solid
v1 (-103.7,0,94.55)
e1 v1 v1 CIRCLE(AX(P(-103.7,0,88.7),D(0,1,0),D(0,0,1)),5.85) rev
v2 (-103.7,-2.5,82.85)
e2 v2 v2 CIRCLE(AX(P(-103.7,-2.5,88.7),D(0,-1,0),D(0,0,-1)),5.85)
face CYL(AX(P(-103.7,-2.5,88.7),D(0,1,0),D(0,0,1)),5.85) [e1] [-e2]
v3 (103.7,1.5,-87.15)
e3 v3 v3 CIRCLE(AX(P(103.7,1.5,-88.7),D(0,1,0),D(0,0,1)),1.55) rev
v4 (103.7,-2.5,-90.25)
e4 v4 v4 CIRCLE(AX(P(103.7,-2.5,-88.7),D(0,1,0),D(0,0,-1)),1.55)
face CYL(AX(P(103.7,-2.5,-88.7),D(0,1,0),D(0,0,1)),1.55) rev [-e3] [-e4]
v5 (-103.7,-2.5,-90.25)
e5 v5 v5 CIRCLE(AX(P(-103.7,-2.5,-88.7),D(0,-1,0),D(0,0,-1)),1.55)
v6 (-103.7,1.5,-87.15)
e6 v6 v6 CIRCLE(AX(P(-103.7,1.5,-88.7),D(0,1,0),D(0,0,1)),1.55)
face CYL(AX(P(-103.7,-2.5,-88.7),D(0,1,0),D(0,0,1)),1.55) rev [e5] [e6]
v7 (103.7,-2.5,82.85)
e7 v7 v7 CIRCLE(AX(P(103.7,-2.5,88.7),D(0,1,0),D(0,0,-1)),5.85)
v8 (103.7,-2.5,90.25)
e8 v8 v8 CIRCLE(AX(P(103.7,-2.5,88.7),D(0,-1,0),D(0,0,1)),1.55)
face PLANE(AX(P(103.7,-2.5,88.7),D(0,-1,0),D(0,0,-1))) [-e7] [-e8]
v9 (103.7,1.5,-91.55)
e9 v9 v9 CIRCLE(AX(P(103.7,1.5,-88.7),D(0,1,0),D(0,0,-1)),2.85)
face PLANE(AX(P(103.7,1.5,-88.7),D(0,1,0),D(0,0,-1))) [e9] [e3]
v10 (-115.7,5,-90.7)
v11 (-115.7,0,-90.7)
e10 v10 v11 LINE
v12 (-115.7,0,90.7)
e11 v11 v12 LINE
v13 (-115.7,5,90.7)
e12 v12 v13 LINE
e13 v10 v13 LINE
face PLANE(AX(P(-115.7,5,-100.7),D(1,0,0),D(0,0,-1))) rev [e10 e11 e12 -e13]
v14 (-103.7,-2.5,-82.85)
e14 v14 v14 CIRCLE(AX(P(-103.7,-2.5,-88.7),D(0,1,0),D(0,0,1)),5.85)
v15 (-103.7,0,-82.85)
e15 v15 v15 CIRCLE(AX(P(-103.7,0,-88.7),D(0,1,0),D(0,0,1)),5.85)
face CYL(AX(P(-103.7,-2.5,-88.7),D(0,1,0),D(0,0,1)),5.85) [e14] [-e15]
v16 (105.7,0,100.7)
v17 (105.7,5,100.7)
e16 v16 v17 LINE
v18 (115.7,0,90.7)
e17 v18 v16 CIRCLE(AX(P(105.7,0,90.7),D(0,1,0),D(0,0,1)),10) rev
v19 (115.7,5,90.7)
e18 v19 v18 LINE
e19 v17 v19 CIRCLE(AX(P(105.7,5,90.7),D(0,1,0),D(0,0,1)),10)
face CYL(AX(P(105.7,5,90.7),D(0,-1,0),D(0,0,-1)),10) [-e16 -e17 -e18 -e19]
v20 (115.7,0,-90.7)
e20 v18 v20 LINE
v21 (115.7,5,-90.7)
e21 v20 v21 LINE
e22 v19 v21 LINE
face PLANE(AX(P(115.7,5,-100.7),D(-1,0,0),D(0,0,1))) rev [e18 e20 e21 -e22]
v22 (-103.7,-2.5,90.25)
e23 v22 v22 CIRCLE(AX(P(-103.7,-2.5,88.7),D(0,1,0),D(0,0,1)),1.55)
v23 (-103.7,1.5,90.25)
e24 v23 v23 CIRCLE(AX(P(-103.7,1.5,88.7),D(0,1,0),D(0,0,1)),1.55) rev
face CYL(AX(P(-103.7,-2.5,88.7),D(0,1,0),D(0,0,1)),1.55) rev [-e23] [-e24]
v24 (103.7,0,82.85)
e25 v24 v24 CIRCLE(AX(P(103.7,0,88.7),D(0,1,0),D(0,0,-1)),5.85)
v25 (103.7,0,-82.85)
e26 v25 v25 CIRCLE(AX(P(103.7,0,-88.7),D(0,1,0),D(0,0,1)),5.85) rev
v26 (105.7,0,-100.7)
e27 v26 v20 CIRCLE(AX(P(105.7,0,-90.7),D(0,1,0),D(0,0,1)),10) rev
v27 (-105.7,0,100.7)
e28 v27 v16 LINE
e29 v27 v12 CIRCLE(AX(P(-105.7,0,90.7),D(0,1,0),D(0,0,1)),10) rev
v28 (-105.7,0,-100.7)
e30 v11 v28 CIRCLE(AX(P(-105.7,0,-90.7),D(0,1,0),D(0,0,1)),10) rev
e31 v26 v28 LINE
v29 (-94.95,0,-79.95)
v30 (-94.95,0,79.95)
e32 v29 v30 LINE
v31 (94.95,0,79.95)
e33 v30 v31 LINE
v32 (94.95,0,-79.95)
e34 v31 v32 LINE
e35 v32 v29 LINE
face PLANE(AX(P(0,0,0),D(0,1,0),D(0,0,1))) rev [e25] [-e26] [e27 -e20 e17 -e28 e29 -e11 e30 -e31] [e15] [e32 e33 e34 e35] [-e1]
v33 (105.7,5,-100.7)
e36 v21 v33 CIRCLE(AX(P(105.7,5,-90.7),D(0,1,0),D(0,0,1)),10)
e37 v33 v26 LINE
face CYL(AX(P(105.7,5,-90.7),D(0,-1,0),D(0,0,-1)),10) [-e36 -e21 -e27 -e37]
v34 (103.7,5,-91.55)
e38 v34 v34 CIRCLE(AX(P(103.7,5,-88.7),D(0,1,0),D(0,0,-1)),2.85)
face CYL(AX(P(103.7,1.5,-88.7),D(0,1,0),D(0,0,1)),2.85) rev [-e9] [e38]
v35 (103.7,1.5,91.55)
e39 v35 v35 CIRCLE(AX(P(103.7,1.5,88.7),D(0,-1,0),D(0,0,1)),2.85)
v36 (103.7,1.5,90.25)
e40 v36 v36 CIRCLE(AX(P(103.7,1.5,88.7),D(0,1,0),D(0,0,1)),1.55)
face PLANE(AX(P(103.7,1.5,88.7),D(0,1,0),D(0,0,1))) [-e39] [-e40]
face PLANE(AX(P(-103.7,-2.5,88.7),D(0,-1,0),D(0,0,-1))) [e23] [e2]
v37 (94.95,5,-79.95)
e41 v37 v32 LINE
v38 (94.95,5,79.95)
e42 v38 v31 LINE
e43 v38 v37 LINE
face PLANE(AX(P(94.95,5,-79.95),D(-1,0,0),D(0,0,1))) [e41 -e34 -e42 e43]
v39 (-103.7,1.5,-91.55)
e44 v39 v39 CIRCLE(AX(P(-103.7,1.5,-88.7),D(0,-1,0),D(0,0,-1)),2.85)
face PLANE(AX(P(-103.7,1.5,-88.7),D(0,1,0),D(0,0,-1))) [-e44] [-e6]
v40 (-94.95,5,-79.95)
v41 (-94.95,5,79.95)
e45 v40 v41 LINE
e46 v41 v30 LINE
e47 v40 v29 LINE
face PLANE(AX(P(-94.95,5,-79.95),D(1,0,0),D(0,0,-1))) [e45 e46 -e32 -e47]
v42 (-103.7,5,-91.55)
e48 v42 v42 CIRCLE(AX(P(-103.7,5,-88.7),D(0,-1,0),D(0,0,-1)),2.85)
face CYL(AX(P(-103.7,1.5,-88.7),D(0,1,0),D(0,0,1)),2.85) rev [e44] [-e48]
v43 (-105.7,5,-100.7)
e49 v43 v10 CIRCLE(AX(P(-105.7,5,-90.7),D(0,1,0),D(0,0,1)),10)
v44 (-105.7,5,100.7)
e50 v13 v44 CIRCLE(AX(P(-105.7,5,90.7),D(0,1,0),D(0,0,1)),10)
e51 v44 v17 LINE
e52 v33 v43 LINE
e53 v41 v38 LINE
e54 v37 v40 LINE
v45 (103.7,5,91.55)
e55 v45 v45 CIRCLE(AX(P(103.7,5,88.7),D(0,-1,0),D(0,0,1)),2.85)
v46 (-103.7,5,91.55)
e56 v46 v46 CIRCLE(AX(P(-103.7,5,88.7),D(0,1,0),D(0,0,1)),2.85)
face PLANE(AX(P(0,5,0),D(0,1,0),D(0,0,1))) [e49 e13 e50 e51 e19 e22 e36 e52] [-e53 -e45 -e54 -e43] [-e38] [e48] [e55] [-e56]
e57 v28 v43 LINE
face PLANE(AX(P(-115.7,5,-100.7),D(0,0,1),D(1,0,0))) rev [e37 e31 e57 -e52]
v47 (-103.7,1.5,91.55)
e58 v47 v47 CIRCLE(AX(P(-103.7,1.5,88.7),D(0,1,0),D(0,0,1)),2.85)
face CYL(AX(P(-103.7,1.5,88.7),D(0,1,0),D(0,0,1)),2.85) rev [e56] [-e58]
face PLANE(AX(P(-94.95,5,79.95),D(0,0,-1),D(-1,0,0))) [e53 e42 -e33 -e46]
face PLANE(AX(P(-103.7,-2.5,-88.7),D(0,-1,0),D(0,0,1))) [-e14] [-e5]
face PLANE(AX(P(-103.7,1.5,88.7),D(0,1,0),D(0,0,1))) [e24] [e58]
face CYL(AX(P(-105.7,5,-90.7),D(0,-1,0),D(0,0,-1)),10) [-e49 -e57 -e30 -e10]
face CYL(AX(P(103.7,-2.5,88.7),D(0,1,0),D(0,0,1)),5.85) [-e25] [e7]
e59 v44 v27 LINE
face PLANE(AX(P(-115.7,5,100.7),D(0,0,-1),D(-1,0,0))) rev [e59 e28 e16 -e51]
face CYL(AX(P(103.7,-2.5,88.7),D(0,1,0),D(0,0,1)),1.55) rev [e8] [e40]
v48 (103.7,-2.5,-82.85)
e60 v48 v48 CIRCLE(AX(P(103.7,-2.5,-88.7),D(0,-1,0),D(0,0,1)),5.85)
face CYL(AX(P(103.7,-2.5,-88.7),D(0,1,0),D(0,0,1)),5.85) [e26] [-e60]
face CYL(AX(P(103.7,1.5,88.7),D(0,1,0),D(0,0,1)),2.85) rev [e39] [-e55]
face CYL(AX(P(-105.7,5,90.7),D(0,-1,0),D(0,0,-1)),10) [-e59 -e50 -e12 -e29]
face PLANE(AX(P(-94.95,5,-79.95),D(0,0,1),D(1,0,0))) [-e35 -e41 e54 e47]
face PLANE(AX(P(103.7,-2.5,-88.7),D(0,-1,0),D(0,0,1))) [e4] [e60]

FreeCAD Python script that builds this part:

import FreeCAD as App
import Part
import Sketcher

V = App.Vector


def edges_at(feature, points):
    """Names of the edges that pass closest to the given points."""
    edges = feature.Shape.Edges
    near = lambda p: min(range(len(edges)), key=lambda i: edges[i].distToShape(Part.Vertex(*p))[0])
    return sorted({f"Edge{near(p) + 1}" for p in points})


def add_polygon(sketch, points):
    """Adds a closed chain of lines whose ends are joined by coincident constraints."""
    first, n = sketch.GeometryCount, len(points)
    for a, b in zip(points, points[1:] + points[:1]):
        sketch.addGeometry(Part.LineSegment(App.Vector(*a, 0), App.Vector(*b, 0)), False)
    for i in range(n):
        sketch.addConstraint(Sketcher.Constraint("Coincident", first + i, 2, first + (i + 1) % n, 1))

doc = App.newDocument("Part")
body = doc.addObject("PartDesign::Body", "Body")

sketch1 = doc.addObject("Sketcher::SketchObject", "Sketch")
body.addObject(sketch1)
sketch1.AttachmentSupport = (doc.XZ_Plane, [""])
sketch1.MapMode = "FlatFace"
add_polygon(sketch1, [(-115.7, -100.7), (-115.7, 100.7), (115.7, 100.7), (115.7, -100.7)])
add_polygon(sketch1, [(94.95, 79.95), (-94.95, 79.95), (-94.95, -79.95), (94.95, -79.95)])
sketch1.addConstraint(Sketcher.Constraint("Vertical", 0))
sketch1.addConstraint(Sketcher.Constraint("Horizontal", 1))
sketch1.addConstraint(Sketcher.Constraint("Vertical", 2))
sketch1.addConstraint(Sketcher.Constraint("Horizontal", 3))
sketch1.addConstraint(Sketcher.Constraint("Horizontal", 4))
sketch1.addConstraint(Sketcher.Constraint("Vertical", 5))
sketch1.addConstraint(Sketcher.Constraint("Horizontal", 6))
sketch1.addConstraint(Sketcher.Constraint("Vertical", 7))
sketch1.addConstraint(Sketcher.Constraint("Symmetric", 0, 2, 2, 2, -1, 1))
sketch1.addConstraint(Sketcher.Constraint("Symmetric", 4, 2, 6, 2, -1, 1))
sketch1.addConstraint(Sketcher.Constraint("DistanceX", 1, 1, 1, 2, 231.4))
sketch1.addConstraint(Sketcher.Constraint("DistanceX", 4, 2, 4, 1, 189.9))
sketch1.addConstraint(Sketcher.Constraint("DistanceY", 0, 1, 0, 2, 201.4))
sketch1.addConstraint(Sketcher.Constraint("DistanceY", 5, 2, 5, 1, 159.9))
pad1 = doc.addObject("PartDesign::Pad", "Pad")
body.addObject(pad1)
pad1.Profile = sketch1
pad1.Length = 5
pad1.Reversed = True
doc.recompute()

fillet = doc.addObject("PartDesign::Fillet", "Fillet")
body.addObject(fillet)
fillet.Base = (pad1, edges_at(pad1, [
    (-115.7, 2.5, -100.7),
    (115.7, 2.5, -100.7),
    (115.7, 2.5, 100.7),
    (-115.7, 2.5, 100.7),
]))
fillet.Radius = 10

sketch2 = doc.addObject("Sketcher::SketchObject", "Sketch001")
body.addObject(sketch2)
sketch2.AttachmentSupport = (doc.XZ_Plane, [""])
sketch2.MapMode = "FlatFace"
sketch2.addGeometry(Part.Circle(V(-103.7, 88.7, 0), V(0, 0, 1), 5.85), False)
sketch2.addConstraint(Sketcher.Constraint("Diameter", 0, 11.7))
sketch2.addConstraint(Sketcher.Constraint("DistanceX", 0, 3, -1, 1, 103.7))
sketch2.addConstraint(Sketcher.Constraint("DistanceY", -1, 1, 0, 3, 88.7))
pad2 = doc.addObject("PartDesign::Pad", "Pad001")
body.addObject(pad2)
pad2.Profile = sketch2
pad2.Length = 2.5

sketch3 = doc.addObject("Sketcher::SketchObject", "Sketch002")
body.addObject(sketch3)
sketch3.AttachmentSupport = (doc.XZ_Plane, [""])
sketch3.MapMode = "FlatFace"
sketch3.AttachmentOffset = App.Placement(V(0, 0, -5), App.Rotation())
sketch3.addGeometry(Part.Circle(V(-103.7, 88.7, 0), V(0, 0, 1), 1.55), False)
sketch3.addConstraint(Sketcher.Constraint("Diameter", 0, 3.1))
sketch3.addConstraint(Sketcher.Constraint("DistanceX", 0, 3, -1, 1, 103.7))
sketch3.addConstraint(Sketcher.Constraint("DistanceY", -1, 1, 0, 3, 88.7))
pocket1 = doc.addObject("PartDesign::Pocket", "Pocket")
body.addObject(pocket1)
pocket1.Profile = sketch3
pocket1.Length = 7.5
pocket1.Reversed = True

sketch4 = doc.addObject("Sketcher::SketchObject", "Sketch003")
body.addObject(sketch4)
sketch4.AttachmentSupport = (doc.XZ_Plane, [""])
sketch4.MapMode = "FlatFace"
sketch4.AttachmentOffset = App.Placement(V(0, 0, -5), App.Rotation())
sketch4.addGeometry(Part.Circle(V(-103.7, 88.7, 0), V(0, 0, 1), 2.85), False)
sketch4.addConstraint(Sketcher.Constraint("Diameter", 0, 5.7))
sketch4.addConstraint(Sketcher.Constraint("DistanceX", 0, 3, -1, 1, 103.7))
sketch4.addConstraint(Sketcher.Constraint("DistanceY", -1, 1, 0, 3, 88.7))
pocket2 = doc.addObject("PartDesign::Pocket", "Pocket001")
body.addObject(pocket2)
pocket2.Profile = sketch4
pocket2.Length = 3.5
pocket2.Reversed = True
doc.recompute()

mirrored = doc.addObject("PartDesign::Mirrored", "Mirrored")
body.addObject(mirrored)
mirrored.Originals = [pad2, pocket1, pocket2]
mirrored.MirrorPlane = (doc.YZ_Plane, [""])
body.Tip = mirrored
doc.recompute()

mirrored2 = doc.addObject("PartDesign::Mirrored", "Mirrored001")
body.addObject(mirrored2)
mirrored2.Originals = [pad2, pocket1, pocket2]
mirrored2.MirrorPlane = (doc.XY_Plane, [""])
body.Tip = mirrored2

sketch5 = doc.addObject("Sketcher::SketchObject", "Sketch004")
body.addObject(sketch5)
sketch5.AttachmentSupport = (doc.XZ_Plane, [""])
sketch5.MapMode = "FlatFace"
sketch5.addGeometry(Part.Circle(V(103.7, -88.7, 0), V(0, 0, 1), 5.85), False)
sketch5.addConstraint(Sketcher.Constraint("Diameter", 0, 11.7))
sketch5.addConstraint(Sketcher.Constraint("DistanceX", -1, 1, 0, 3, 103.7))
sketch5.addConstraint(Sketcher.Constraint("DistanceY", 0, 3, -1, 1, 88.7))
pad3 = doc.addObject("PartDesign::Pad", "Pad002")
body.addObject(pad3)
pad3.Profile = sketch5
pad3.Length = 2.5

sketch6 = doc.addObject("Sketcher::SketchObject", "Sketch005")
body.addObject(sketch6)
sketch6.AttachmentSupport = (doc.XZ_Plane, [""])
sketch6.MapMode = "FlatFace"
sketch6.AttachmentOffset = App.Placement(V(0, 0, -5), App.Rotation())
sketch6.addGeometry(Part.Circle(V(103.7, -88.7, 0), V(0, 0, 1), 1.55), False)
sketch6.addConstraint(Sketcher.Constraint("Diameter", 0, 3.1))
sketch6.addConstraint(Sketcher.Constraint("DistanceX", -1, 1, 0, 3, 103.7))
sketch6.addConstraint(Sketcher.Constraint("DistanceY", 0, 3, -1, 1, 88.7))
pocket3 = doc.addObject("PartDesign::Pocket", "Pocket002")
body.addObject(pocket3)
pocket3.Profile = sketch6
pocket3.Length = 7.5
pocket3.Reversed = True

sketch7 = doc.addObject("Sketcher::SketchObject", "Sketch006")
body.addObject(sketch7)
sketch7.AttachmentSupport = (doc.XZ_Plane, [""])
sketch7.MapMode = "FlatFace"
sketch7.AttachmentOffset = App.Placement(V(0, 0, -5), App.Rotation())
sketch7.addGeometry(Part.Circle(V(103.7, -88.7, 0), V(0, 0, 1), 2.85), False)
sketch7.addConstraint(Sketcher.Constraint("Diameter", 0, 5.7))
sketch7.addConstraint(Sketcher.Constraint("DistanceX", -1, 1, 0, 3, 103.7))
sketch7.addConstraint(Sketcher.Constraint("DistanceY", 0, 3, -1, 1, 88.7))
pocket4 = doc.addObject("PartDesign::Pocket", "Pocket003")
body.addObject(pocket4)
pocket4.Profile = sketch7
pocket4.Length = 3.5
pocket4.Reversed = True

doc.recompute()
